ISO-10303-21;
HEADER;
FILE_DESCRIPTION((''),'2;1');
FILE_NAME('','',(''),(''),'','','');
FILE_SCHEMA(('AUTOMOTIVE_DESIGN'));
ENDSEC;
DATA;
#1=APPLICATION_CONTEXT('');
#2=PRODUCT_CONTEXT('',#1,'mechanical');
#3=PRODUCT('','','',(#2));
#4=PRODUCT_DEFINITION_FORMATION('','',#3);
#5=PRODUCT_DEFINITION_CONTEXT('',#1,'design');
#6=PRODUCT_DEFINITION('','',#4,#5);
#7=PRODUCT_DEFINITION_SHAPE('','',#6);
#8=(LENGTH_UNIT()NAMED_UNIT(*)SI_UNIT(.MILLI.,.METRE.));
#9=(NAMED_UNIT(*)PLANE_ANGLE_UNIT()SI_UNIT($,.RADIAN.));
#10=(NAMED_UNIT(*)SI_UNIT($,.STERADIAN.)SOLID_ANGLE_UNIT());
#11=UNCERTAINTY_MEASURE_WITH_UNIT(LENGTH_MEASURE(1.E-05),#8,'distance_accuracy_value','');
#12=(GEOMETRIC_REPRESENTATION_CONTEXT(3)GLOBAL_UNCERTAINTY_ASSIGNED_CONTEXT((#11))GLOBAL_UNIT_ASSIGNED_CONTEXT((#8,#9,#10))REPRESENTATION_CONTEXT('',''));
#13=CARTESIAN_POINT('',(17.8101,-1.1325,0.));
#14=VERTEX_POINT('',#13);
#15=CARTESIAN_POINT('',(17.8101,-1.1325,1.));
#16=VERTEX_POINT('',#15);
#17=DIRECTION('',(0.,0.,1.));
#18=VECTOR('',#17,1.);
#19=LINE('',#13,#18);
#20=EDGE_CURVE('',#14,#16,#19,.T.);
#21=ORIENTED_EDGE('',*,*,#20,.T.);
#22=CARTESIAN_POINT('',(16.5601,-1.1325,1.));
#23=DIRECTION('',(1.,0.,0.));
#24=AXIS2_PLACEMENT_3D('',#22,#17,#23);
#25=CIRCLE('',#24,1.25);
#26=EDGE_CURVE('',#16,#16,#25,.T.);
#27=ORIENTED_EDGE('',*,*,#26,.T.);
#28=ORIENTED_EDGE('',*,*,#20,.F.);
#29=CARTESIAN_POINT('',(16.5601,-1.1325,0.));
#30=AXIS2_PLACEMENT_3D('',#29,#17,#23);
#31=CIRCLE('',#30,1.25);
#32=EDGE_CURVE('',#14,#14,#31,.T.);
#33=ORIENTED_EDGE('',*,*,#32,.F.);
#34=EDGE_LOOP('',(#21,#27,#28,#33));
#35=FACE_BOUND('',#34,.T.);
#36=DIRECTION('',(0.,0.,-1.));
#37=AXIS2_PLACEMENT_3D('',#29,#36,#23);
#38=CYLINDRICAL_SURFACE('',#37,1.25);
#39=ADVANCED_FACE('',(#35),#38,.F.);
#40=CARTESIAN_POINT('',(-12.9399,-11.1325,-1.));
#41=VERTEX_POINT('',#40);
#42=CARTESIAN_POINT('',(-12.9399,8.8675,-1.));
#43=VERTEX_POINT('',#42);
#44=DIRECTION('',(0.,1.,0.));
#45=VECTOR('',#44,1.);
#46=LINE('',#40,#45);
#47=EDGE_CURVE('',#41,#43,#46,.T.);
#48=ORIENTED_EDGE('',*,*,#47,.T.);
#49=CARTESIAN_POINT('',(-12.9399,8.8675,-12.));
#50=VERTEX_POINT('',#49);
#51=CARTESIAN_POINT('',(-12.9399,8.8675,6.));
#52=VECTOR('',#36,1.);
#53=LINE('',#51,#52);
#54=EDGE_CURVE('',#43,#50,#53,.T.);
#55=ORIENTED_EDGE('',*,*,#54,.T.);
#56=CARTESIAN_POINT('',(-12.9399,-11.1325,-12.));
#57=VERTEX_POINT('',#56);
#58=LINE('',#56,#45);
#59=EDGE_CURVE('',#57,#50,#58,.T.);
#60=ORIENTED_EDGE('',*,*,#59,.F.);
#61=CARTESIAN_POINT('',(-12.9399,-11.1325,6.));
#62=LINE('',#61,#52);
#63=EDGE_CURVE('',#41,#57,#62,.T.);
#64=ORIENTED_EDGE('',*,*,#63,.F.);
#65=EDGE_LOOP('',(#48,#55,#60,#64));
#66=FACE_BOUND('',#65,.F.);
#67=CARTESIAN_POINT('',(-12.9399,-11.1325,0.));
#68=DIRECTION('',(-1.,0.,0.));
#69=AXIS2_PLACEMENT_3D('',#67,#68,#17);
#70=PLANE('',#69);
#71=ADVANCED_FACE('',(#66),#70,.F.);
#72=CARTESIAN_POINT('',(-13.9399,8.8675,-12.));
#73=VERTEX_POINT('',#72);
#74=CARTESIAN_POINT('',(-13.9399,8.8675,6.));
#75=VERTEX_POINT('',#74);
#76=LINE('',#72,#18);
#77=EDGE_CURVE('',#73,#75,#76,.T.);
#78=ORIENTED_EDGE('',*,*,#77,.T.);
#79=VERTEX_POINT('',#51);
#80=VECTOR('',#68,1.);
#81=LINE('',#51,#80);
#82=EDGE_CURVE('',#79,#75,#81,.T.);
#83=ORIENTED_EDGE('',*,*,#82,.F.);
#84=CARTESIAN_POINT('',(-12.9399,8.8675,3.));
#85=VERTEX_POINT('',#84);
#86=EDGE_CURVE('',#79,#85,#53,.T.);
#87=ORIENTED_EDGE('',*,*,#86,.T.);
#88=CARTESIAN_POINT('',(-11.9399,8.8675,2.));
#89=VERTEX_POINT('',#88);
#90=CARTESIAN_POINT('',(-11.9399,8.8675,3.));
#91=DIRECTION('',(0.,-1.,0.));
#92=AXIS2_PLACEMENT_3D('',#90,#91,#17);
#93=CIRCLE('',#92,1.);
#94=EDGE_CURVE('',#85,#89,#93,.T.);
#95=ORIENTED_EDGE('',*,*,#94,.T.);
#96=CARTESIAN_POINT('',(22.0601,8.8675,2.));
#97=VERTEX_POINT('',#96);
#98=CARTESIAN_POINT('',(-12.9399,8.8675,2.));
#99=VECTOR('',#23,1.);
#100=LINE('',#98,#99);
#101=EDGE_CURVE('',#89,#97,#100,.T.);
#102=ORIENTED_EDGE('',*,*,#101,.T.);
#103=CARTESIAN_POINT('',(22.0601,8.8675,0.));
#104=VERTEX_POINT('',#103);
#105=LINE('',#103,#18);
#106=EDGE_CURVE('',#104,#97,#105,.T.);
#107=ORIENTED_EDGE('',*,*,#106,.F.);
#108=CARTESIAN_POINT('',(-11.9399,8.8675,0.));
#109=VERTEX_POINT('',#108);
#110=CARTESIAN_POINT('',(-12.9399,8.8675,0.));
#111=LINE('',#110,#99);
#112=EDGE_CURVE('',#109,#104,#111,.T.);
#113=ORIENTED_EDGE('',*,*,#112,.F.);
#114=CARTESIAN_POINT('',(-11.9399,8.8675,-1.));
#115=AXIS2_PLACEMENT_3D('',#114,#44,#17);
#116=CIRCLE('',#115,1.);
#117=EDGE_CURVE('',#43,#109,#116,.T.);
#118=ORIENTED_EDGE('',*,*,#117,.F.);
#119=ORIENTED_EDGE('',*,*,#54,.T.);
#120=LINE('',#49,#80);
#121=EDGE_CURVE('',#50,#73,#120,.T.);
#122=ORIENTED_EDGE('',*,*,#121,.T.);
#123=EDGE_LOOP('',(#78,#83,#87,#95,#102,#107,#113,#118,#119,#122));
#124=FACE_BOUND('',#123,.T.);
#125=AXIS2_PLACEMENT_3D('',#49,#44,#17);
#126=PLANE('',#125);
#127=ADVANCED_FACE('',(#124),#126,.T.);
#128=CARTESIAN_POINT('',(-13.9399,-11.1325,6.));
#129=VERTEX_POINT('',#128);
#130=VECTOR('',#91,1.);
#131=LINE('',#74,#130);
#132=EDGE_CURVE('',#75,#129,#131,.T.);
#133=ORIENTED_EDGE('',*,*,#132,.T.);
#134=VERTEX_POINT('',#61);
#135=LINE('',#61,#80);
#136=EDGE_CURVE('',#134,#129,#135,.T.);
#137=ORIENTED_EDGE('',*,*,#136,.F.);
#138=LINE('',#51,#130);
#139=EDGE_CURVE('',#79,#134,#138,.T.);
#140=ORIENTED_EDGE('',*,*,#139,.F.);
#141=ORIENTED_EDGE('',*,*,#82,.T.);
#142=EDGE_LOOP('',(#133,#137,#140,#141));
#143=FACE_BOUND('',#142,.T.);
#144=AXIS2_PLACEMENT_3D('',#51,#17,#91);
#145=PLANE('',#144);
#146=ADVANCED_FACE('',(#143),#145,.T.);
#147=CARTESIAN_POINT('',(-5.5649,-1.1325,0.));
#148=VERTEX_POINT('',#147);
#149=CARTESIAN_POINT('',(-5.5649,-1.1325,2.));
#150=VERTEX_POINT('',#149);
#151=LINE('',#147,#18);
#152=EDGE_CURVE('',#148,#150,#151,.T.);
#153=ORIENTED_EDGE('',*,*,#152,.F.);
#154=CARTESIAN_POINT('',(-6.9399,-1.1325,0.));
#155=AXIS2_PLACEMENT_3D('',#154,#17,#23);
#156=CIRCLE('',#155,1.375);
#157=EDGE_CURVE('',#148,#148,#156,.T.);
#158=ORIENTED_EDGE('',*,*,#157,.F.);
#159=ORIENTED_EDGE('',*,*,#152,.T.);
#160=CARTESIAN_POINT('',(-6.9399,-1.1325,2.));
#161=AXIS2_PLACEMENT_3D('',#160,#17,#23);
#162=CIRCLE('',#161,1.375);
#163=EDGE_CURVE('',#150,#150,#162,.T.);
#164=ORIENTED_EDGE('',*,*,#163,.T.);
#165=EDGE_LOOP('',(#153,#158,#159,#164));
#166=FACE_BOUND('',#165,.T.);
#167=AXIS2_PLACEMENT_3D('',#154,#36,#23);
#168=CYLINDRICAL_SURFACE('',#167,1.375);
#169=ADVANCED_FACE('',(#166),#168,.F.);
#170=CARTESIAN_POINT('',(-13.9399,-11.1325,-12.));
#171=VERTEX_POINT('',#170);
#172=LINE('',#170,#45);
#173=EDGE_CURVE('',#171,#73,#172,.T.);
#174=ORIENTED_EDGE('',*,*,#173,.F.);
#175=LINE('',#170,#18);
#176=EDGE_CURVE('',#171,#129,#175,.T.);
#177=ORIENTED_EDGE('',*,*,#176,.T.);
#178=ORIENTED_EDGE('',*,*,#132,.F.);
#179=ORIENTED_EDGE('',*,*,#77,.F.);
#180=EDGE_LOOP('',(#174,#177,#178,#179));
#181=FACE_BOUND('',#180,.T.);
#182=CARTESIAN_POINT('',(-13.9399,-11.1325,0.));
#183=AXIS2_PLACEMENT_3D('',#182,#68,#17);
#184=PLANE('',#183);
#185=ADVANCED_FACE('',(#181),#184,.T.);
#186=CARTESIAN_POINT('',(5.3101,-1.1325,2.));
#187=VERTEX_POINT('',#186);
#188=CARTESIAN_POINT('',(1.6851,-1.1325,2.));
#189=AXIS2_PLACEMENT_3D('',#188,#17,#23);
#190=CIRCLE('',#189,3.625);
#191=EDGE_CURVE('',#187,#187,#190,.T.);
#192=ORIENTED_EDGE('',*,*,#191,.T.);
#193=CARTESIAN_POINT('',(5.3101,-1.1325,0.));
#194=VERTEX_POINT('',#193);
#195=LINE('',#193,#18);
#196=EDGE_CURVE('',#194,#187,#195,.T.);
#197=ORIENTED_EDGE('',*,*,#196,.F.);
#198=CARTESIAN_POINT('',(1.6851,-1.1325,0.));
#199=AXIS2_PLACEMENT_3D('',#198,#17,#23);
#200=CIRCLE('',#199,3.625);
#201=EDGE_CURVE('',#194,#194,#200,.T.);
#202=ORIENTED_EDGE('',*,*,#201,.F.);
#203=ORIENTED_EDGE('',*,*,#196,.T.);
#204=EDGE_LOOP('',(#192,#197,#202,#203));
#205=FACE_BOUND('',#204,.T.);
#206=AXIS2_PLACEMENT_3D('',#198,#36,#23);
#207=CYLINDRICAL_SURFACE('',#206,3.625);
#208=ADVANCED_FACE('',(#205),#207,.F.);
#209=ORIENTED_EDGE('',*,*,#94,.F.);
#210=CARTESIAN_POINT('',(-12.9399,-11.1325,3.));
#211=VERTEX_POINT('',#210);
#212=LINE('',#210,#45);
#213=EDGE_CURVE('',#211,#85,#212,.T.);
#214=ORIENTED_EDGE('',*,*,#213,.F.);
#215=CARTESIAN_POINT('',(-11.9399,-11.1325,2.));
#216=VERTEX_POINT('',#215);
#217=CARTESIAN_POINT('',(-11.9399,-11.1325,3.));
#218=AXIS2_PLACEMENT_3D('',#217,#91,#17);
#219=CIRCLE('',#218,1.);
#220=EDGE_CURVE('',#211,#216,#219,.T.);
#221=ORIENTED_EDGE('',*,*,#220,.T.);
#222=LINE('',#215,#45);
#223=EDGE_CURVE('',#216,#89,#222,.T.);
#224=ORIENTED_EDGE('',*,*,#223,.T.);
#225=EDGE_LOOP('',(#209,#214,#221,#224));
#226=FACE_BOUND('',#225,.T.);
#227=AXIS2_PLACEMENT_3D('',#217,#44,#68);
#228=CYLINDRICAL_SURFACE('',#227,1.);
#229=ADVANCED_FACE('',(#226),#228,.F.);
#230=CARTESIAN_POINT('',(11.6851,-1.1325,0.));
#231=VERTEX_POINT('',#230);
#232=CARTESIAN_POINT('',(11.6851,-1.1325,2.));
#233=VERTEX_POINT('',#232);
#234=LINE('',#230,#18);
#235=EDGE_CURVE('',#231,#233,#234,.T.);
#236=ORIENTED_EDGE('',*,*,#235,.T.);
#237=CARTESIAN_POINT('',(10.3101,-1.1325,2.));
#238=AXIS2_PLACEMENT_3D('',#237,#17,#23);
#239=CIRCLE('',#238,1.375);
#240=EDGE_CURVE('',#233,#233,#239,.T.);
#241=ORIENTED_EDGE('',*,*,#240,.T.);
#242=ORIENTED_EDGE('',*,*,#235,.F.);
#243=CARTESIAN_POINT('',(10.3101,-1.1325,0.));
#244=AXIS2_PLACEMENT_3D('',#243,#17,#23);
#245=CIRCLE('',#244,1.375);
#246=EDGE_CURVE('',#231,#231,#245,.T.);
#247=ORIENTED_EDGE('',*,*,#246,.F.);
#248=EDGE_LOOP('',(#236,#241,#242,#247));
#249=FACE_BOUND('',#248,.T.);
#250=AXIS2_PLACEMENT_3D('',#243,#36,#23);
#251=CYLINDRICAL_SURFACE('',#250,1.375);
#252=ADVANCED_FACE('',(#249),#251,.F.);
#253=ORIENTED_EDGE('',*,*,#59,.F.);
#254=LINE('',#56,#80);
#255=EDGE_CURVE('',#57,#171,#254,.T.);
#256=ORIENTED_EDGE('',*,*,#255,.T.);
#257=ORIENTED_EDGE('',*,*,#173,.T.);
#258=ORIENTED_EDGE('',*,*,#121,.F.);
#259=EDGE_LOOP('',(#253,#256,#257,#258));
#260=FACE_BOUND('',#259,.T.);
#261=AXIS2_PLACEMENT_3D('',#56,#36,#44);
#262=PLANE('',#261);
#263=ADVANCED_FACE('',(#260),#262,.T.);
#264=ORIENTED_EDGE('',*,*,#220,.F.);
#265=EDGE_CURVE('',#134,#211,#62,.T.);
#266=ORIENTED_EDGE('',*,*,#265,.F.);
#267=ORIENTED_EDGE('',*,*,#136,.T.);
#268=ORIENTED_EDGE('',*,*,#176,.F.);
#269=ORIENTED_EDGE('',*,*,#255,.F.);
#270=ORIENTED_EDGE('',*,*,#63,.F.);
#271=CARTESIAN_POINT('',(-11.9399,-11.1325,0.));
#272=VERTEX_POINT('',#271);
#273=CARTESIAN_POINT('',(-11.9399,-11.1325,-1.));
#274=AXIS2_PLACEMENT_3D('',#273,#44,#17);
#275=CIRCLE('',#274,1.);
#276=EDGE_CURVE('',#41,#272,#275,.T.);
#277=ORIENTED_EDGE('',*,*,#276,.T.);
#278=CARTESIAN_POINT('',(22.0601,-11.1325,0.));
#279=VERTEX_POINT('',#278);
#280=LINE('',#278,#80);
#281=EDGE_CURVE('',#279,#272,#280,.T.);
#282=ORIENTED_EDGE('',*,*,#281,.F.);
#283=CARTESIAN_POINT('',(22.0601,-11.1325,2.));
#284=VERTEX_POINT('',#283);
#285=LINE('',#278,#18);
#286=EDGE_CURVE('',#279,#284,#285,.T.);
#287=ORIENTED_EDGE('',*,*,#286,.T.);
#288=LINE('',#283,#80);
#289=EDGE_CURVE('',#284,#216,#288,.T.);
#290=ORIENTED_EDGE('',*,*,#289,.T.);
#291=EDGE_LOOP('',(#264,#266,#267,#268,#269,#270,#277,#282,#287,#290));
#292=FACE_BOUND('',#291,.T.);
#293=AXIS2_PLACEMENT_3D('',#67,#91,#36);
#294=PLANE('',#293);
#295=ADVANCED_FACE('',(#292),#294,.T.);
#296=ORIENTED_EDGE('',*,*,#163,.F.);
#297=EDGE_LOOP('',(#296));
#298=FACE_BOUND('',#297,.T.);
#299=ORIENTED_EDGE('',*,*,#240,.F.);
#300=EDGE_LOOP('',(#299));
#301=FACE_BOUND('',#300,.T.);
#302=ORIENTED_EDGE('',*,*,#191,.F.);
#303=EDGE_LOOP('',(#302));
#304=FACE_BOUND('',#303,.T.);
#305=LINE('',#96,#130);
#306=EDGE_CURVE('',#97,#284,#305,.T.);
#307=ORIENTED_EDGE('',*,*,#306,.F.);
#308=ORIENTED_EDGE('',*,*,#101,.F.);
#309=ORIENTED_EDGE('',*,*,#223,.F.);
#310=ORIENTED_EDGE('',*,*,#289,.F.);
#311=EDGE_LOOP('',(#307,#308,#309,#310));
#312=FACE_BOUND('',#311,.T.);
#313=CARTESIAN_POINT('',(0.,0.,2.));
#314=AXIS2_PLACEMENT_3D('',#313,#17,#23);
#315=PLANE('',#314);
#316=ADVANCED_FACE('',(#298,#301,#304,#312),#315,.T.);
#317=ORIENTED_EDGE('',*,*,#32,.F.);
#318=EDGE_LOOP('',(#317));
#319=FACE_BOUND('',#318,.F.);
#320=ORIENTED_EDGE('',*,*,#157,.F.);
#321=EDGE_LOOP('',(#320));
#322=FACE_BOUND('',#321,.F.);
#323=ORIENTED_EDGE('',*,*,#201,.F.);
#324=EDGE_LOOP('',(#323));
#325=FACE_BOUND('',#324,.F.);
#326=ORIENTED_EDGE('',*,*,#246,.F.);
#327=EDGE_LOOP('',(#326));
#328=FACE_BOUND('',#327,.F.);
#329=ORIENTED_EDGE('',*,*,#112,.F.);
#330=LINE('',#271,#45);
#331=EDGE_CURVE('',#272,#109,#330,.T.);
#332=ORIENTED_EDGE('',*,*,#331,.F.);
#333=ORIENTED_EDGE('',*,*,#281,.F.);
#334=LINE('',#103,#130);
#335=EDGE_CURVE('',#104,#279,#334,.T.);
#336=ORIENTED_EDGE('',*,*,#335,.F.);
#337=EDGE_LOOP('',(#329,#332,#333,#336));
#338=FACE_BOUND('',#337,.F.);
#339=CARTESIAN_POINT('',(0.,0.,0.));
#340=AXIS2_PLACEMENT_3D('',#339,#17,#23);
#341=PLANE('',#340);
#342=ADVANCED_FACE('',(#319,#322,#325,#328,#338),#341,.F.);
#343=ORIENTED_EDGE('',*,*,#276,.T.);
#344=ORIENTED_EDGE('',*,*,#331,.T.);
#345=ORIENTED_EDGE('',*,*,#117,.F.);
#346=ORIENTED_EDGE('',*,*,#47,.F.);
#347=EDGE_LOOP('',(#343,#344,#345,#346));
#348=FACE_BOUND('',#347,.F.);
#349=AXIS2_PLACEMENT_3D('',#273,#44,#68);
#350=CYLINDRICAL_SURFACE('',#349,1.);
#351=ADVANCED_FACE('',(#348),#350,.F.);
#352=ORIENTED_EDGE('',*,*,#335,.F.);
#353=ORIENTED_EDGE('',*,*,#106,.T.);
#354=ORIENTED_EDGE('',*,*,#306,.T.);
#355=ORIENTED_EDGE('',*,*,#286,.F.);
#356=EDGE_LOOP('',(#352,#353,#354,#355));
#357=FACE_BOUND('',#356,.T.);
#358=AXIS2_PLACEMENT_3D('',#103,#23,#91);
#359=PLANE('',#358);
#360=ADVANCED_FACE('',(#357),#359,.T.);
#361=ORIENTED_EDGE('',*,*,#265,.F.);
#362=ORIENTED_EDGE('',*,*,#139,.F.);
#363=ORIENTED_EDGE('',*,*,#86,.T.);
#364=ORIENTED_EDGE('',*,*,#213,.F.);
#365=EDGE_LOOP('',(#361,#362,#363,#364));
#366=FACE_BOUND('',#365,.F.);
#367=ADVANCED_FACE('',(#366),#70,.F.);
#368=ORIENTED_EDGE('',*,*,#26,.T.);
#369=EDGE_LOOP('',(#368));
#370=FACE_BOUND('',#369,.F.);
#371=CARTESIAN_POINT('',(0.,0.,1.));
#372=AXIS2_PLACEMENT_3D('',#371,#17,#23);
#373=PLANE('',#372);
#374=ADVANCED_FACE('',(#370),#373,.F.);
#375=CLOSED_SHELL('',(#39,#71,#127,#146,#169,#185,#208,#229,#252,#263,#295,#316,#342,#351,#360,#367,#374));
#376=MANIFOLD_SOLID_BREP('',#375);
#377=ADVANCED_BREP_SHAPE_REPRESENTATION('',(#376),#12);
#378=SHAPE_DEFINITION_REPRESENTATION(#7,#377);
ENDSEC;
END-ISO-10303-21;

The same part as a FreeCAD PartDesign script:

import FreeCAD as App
import Part
import Sketcher

V = App.Vector


def edges_at(feature, points):
    """Names of the edges that pass closest to the given points."""
    edges = feature.Shape.Edges
    near = lambda p: min(range(len(edges)), key=lambda i: edges[i].distToShape(Part.Vertex(*p))[0])
    return sorted({f"Edge{near(p) + 1}" for p in points})

doc = App.newDocument("Part")
params = doc.addObject("Spreadsheet::Sheet", "Params")
for row, (alias, value) in enumerate([
    ("sketch1_diameter", "2.75 mm"),
    ("sketch1_diameter2", "7.25 mm"),
    ("sketch1_width", "35 mm"),
    ("sketch1_height", "20 mm"),
    ("pad1_length", "2 mm"),
    ("sketch2_width", "20 mm"),
    ("sketch2_height", "18 mm"),
    ("pad2_length", "1 mm"),
    ("fillet_radius", "1 mm"),
    ("sketch3_diameter", "2.5 mm"),
    ("pocket1_length", "1 mm"),
], start=1):
    params.set(f"A{row}", alias)
    params.set(f"B{row}", "=" + value)
    params.setAlias(f"B{row}", alias)

body = doc.addObject("PartDesign::Body", "Body")

sketch1 = doc.addObject("Sketcher::SketchObject", "Sketch")
body.addObject(sketch1)
sketch1.AttachmentSupport = (doc.XY_Plane, [""])
sketch1.MapMode = "FlatFace"
sketch1.addGeometry([
    Part.LineSegment(V(22.1, 8.9, 0), V(-12.9, 8.9, 0)),
    Part.LineSegment(V(-12.9, 8.9, 0), V(-12.9, -11.1, 0)),
    Part.LineSegment(V(-12.9, -11.1, 0), V(22.1, -11.1, 0)),
    Part.LineSegment(V(22.1, -11.1, 0), V(22.1, 8.9, 0)),
    Part.Circle(V(-6.9, -1.1, 0), V(0, 0, 1), 1.4),
    Part.Circle(V(1.7, -1.1, 0), V(0, 0, 1), 3.6),
    Part.Circle(V(10.3, -1.1, 0), V(0, 0, 1), 1.4),
], False)
sketch1.addConstraint([
    Sketcher.Constraint("Coincident", 0, 2, 1, 1),
    Sketcher.Constraint("Coincident", 1, 2, 2, 1),
    Sketcher.Constraint("Coincident", 2, 2, 3, 1),
    Sketcher.Constraint("Coincident", 3, 2, 0, 1),
    Sketcher.Constraint("Horizontal", 0),
    Sketcher.Constraint("Vertical", 1),
    Sketcher.Constraint("Horizontal", 2),
    Sketcher.Constraint("Vertical", 3),
    Sketcher.Constraint("Equal", 4, 6),
    Sketcher.Constraint("Horizontal", 4, 3, 5, 3),
    Sketcher.Constraint("Horizontal", 5, 3, 6, 3),
    Sketcher.Constraint("Diameter", 4, 2.75),
    Sketcher.Constraint("Diameter", 5, 7.25),
    Sketcher.Constraint("DistanceX", 0, 2, 0, 1, 35.0),
    Sketcher.Constraint("DistanceY", 1, 2, 1, 1, 20.0),
    Sketcher.Constraint("DistanceX", 0, 2, 4, 3, 6.0),
    Sketcher.Constraint("DistanceY", 4, 3, 0, 2, 10.0),
    Sketcher.Constraint("DistanceX", 4, 3, 5, 3, 8.625),
    Sketcher.Constraint("DistanceX", 5, 3, 6, 3, 8.625),
    Sketcher.Constraint("DistanceX", 4, 3, -1, 1, 6.94),
    Sketcher.Constraint("DistanceY", 4, 3, -1, 1, 1.1325),
])
sketch1.setExpression("Constraints[11]", "Params.sketch1_diameter")
sketch1.setExpression("Constraints[12]", "Params.sketch1_diameter2")
sketch1.setExpression("Constraints[13]", "Params.sketch1_width")
sketch1.setExpression("Constraints[14]", "Params.sketch1_height")
pad1 = doc.addObject("PartDesign::Pad", "Pad")
body.addObject(pad1)
pad1.Profile = sketch1
pad1.setExpression("Length", "Params.pad1_length")

sketch2 = doc.addObject("Sketcher::SketchObject", "Sketch001")
body.addObject(sketch2)
sketch2.AttachmentSupport = (doc.YZ_Plane, [""])
sketch2.MapMode = "FlatFace"
sketch2.AttachmentOffset = App.Placement(V(0, 0, -12.9399), App.Rotation())
sketch2.addGeometry([
    Part.LineSegment(V(9, -12, 0), V(-11, -12, 0)),
    Part.LineSegment(V(-11, -12, 0), V(-11, 6, 0)),
    Part.LineSegment(V(-11, 6, 0), V(9, 6, 0)),
    Part.LineSegment(V(9, 6, 0), V(9, -12, 0)),
], False)
sketch2.addConstraint([
    Sketcher.Constraint("Coincident", 0, 2, 1, 1),
    Sketcher.Constraint("Coincident", 1, 2, 2, 1),
    Sketcher.Constraint("Coincident", 2, 2, 3, 1),
    Sketcher.Constraint("Coincident", 3, 2, 0, 1),
    Sketcher.Constraint("Horizontal", 0),
    Sketcher.Constraint("Vertical", 1),
    Sketcher.Constraint("Horizontal", 2),
    Sketcher.Constraint("Vertical", 3),
    Sketcher.Constraint("DistanceY", 0, 2, -1, 1, 12.0),
    Sketcher.Constraint("DistanceX", 0, 2, 0, 1, 20.0),
    Sketcher.Constraint("DistanceY", 1, 1, 1, 2, 18.0),
    Sketcher.Constraint("DistanceX", 0, 2, -1, 1, 11.1325),
])
sketch2.setExpression("Constraints[9]", "Params.sketch2_width")
sketch2.setExpression("Constraints[10]", "Params.sketch2_height")
pad2 = doc.addObject("PartDesign::Pad", "Pad001")
body.addObject(pad2)
pad2.Profile = sketch2
pad2.setExpression("Length", "Params.pad2_length")
pad2.Reversed = True
doc.recompute()

fillet = doc.addObject("PartDesign::Fillet", "Fillet")
body.addObject(fillet)
fillet.Base = (pad2, edges_at(pad2, [(-12.94, -1.133, 2), (-12.94, -1.133, 0)]))
fillet.setExpression("Radius", "Params.fillet_radius")

sketch3 = doc.addObject("Sketcher::SketchObject", "Sketch002")
body.addObject(sketch3)
sketch3.AttachmentSupport = (doc.XY_Plane, [""])
sketch3.MapMode = "FlatFace"
sketch3.addGeometry(Part.Circle(V(16.6, -1.1, 0), V(0, 0, 1), 1.2), False)
sketch3.addConstraint([
    Sketcher.Constraint("Diameter", 0, 2.5),
    Sketcher.Constraint("DistanceX", -1, 1, 0, 3, 16.56),
    Sketcher.Constraint("DistanceY", 0, 3, -1, 1, 1.1325),
])
sketch3.setExpression("Constraints[0]", "Params.sketch3_diameter")
pocket1 = doc.addObject("PartDesign::Pocket", "Pocket")
body.addObject(pocket1)
pocket1.Profile = sketch3
pocket1.setExpression("Length", "Params.pocket1_length")
pocket1.Reversed = True

doc.recompute()
